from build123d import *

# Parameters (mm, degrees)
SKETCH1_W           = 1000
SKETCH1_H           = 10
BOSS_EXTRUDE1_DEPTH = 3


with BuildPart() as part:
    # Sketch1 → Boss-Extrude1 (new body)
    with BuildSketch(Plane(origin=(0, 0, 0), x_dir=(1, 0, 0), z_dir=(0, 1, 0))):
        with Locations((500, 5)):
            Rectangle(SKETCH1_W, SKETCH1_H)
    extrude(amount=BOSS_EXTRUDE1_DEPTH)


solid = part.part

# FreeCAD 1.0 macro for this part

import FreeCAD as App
import Part
import Sketcher

V = App.Vector
Q = App.Units.Quantity


def add_polygon(sketch, points):
    """Adds a closed chain of lines whose ends are joined by coincident constraints."""
    first, n = sketch.GeometryCount, len(points)
    for a, b in zip(points, points[1:] + points[:1]):
        sketch.addGeometry(Part.LineSegment(App.Vector(*a, 0), App.Vector(*b, 0)), False)
    for i in range(n):
        sketch.addConstraint(Sketcher.Constraint("Coincident", first + i, 2, first + (i + 1) % n, 1))

doc = App.newDocument("Part")
body = doc.addObject("PartDesign::Body", "Body")

# Sketch on XZ plane
sketch1 = body.newObject("Sketcher::SketchObject", "Sketch")
sketch1.AttachmentSupport = (doc.getObject("XZ_Plane"), [""])
sketch1.MapMode = "FlatFace"
add_polygon(sketch1, [(0, -10), (0, 0), (1000, 0), (1000, -10)])  # lines 0-3
sketch1.addConstraint([
    Sketcher.Constraint("Vertical", 0),
    Sketcher.Constraint("Horizontal", 1),
    Sketcher.Constraint("Vertical", 2),
    Sketcher.Constraint("Horizontal", 3),
    Sketcher.Constraint("Coincident", 0, 2, -1, 1),
    Sketcher.Constraint("DistanceX", 1, 1, 1, 2, Q("1000 mm")),
    Sketcher.Constraint("DistanceY", 0, 1, 0, 2, Q("10 mm")),
])
pad1 = body.newObject("PartDesign::Pad", "Pad")
pad1.Profile = sketch1
pad1.Length = 3
pad1.Reversed = True

doc.recompute()
